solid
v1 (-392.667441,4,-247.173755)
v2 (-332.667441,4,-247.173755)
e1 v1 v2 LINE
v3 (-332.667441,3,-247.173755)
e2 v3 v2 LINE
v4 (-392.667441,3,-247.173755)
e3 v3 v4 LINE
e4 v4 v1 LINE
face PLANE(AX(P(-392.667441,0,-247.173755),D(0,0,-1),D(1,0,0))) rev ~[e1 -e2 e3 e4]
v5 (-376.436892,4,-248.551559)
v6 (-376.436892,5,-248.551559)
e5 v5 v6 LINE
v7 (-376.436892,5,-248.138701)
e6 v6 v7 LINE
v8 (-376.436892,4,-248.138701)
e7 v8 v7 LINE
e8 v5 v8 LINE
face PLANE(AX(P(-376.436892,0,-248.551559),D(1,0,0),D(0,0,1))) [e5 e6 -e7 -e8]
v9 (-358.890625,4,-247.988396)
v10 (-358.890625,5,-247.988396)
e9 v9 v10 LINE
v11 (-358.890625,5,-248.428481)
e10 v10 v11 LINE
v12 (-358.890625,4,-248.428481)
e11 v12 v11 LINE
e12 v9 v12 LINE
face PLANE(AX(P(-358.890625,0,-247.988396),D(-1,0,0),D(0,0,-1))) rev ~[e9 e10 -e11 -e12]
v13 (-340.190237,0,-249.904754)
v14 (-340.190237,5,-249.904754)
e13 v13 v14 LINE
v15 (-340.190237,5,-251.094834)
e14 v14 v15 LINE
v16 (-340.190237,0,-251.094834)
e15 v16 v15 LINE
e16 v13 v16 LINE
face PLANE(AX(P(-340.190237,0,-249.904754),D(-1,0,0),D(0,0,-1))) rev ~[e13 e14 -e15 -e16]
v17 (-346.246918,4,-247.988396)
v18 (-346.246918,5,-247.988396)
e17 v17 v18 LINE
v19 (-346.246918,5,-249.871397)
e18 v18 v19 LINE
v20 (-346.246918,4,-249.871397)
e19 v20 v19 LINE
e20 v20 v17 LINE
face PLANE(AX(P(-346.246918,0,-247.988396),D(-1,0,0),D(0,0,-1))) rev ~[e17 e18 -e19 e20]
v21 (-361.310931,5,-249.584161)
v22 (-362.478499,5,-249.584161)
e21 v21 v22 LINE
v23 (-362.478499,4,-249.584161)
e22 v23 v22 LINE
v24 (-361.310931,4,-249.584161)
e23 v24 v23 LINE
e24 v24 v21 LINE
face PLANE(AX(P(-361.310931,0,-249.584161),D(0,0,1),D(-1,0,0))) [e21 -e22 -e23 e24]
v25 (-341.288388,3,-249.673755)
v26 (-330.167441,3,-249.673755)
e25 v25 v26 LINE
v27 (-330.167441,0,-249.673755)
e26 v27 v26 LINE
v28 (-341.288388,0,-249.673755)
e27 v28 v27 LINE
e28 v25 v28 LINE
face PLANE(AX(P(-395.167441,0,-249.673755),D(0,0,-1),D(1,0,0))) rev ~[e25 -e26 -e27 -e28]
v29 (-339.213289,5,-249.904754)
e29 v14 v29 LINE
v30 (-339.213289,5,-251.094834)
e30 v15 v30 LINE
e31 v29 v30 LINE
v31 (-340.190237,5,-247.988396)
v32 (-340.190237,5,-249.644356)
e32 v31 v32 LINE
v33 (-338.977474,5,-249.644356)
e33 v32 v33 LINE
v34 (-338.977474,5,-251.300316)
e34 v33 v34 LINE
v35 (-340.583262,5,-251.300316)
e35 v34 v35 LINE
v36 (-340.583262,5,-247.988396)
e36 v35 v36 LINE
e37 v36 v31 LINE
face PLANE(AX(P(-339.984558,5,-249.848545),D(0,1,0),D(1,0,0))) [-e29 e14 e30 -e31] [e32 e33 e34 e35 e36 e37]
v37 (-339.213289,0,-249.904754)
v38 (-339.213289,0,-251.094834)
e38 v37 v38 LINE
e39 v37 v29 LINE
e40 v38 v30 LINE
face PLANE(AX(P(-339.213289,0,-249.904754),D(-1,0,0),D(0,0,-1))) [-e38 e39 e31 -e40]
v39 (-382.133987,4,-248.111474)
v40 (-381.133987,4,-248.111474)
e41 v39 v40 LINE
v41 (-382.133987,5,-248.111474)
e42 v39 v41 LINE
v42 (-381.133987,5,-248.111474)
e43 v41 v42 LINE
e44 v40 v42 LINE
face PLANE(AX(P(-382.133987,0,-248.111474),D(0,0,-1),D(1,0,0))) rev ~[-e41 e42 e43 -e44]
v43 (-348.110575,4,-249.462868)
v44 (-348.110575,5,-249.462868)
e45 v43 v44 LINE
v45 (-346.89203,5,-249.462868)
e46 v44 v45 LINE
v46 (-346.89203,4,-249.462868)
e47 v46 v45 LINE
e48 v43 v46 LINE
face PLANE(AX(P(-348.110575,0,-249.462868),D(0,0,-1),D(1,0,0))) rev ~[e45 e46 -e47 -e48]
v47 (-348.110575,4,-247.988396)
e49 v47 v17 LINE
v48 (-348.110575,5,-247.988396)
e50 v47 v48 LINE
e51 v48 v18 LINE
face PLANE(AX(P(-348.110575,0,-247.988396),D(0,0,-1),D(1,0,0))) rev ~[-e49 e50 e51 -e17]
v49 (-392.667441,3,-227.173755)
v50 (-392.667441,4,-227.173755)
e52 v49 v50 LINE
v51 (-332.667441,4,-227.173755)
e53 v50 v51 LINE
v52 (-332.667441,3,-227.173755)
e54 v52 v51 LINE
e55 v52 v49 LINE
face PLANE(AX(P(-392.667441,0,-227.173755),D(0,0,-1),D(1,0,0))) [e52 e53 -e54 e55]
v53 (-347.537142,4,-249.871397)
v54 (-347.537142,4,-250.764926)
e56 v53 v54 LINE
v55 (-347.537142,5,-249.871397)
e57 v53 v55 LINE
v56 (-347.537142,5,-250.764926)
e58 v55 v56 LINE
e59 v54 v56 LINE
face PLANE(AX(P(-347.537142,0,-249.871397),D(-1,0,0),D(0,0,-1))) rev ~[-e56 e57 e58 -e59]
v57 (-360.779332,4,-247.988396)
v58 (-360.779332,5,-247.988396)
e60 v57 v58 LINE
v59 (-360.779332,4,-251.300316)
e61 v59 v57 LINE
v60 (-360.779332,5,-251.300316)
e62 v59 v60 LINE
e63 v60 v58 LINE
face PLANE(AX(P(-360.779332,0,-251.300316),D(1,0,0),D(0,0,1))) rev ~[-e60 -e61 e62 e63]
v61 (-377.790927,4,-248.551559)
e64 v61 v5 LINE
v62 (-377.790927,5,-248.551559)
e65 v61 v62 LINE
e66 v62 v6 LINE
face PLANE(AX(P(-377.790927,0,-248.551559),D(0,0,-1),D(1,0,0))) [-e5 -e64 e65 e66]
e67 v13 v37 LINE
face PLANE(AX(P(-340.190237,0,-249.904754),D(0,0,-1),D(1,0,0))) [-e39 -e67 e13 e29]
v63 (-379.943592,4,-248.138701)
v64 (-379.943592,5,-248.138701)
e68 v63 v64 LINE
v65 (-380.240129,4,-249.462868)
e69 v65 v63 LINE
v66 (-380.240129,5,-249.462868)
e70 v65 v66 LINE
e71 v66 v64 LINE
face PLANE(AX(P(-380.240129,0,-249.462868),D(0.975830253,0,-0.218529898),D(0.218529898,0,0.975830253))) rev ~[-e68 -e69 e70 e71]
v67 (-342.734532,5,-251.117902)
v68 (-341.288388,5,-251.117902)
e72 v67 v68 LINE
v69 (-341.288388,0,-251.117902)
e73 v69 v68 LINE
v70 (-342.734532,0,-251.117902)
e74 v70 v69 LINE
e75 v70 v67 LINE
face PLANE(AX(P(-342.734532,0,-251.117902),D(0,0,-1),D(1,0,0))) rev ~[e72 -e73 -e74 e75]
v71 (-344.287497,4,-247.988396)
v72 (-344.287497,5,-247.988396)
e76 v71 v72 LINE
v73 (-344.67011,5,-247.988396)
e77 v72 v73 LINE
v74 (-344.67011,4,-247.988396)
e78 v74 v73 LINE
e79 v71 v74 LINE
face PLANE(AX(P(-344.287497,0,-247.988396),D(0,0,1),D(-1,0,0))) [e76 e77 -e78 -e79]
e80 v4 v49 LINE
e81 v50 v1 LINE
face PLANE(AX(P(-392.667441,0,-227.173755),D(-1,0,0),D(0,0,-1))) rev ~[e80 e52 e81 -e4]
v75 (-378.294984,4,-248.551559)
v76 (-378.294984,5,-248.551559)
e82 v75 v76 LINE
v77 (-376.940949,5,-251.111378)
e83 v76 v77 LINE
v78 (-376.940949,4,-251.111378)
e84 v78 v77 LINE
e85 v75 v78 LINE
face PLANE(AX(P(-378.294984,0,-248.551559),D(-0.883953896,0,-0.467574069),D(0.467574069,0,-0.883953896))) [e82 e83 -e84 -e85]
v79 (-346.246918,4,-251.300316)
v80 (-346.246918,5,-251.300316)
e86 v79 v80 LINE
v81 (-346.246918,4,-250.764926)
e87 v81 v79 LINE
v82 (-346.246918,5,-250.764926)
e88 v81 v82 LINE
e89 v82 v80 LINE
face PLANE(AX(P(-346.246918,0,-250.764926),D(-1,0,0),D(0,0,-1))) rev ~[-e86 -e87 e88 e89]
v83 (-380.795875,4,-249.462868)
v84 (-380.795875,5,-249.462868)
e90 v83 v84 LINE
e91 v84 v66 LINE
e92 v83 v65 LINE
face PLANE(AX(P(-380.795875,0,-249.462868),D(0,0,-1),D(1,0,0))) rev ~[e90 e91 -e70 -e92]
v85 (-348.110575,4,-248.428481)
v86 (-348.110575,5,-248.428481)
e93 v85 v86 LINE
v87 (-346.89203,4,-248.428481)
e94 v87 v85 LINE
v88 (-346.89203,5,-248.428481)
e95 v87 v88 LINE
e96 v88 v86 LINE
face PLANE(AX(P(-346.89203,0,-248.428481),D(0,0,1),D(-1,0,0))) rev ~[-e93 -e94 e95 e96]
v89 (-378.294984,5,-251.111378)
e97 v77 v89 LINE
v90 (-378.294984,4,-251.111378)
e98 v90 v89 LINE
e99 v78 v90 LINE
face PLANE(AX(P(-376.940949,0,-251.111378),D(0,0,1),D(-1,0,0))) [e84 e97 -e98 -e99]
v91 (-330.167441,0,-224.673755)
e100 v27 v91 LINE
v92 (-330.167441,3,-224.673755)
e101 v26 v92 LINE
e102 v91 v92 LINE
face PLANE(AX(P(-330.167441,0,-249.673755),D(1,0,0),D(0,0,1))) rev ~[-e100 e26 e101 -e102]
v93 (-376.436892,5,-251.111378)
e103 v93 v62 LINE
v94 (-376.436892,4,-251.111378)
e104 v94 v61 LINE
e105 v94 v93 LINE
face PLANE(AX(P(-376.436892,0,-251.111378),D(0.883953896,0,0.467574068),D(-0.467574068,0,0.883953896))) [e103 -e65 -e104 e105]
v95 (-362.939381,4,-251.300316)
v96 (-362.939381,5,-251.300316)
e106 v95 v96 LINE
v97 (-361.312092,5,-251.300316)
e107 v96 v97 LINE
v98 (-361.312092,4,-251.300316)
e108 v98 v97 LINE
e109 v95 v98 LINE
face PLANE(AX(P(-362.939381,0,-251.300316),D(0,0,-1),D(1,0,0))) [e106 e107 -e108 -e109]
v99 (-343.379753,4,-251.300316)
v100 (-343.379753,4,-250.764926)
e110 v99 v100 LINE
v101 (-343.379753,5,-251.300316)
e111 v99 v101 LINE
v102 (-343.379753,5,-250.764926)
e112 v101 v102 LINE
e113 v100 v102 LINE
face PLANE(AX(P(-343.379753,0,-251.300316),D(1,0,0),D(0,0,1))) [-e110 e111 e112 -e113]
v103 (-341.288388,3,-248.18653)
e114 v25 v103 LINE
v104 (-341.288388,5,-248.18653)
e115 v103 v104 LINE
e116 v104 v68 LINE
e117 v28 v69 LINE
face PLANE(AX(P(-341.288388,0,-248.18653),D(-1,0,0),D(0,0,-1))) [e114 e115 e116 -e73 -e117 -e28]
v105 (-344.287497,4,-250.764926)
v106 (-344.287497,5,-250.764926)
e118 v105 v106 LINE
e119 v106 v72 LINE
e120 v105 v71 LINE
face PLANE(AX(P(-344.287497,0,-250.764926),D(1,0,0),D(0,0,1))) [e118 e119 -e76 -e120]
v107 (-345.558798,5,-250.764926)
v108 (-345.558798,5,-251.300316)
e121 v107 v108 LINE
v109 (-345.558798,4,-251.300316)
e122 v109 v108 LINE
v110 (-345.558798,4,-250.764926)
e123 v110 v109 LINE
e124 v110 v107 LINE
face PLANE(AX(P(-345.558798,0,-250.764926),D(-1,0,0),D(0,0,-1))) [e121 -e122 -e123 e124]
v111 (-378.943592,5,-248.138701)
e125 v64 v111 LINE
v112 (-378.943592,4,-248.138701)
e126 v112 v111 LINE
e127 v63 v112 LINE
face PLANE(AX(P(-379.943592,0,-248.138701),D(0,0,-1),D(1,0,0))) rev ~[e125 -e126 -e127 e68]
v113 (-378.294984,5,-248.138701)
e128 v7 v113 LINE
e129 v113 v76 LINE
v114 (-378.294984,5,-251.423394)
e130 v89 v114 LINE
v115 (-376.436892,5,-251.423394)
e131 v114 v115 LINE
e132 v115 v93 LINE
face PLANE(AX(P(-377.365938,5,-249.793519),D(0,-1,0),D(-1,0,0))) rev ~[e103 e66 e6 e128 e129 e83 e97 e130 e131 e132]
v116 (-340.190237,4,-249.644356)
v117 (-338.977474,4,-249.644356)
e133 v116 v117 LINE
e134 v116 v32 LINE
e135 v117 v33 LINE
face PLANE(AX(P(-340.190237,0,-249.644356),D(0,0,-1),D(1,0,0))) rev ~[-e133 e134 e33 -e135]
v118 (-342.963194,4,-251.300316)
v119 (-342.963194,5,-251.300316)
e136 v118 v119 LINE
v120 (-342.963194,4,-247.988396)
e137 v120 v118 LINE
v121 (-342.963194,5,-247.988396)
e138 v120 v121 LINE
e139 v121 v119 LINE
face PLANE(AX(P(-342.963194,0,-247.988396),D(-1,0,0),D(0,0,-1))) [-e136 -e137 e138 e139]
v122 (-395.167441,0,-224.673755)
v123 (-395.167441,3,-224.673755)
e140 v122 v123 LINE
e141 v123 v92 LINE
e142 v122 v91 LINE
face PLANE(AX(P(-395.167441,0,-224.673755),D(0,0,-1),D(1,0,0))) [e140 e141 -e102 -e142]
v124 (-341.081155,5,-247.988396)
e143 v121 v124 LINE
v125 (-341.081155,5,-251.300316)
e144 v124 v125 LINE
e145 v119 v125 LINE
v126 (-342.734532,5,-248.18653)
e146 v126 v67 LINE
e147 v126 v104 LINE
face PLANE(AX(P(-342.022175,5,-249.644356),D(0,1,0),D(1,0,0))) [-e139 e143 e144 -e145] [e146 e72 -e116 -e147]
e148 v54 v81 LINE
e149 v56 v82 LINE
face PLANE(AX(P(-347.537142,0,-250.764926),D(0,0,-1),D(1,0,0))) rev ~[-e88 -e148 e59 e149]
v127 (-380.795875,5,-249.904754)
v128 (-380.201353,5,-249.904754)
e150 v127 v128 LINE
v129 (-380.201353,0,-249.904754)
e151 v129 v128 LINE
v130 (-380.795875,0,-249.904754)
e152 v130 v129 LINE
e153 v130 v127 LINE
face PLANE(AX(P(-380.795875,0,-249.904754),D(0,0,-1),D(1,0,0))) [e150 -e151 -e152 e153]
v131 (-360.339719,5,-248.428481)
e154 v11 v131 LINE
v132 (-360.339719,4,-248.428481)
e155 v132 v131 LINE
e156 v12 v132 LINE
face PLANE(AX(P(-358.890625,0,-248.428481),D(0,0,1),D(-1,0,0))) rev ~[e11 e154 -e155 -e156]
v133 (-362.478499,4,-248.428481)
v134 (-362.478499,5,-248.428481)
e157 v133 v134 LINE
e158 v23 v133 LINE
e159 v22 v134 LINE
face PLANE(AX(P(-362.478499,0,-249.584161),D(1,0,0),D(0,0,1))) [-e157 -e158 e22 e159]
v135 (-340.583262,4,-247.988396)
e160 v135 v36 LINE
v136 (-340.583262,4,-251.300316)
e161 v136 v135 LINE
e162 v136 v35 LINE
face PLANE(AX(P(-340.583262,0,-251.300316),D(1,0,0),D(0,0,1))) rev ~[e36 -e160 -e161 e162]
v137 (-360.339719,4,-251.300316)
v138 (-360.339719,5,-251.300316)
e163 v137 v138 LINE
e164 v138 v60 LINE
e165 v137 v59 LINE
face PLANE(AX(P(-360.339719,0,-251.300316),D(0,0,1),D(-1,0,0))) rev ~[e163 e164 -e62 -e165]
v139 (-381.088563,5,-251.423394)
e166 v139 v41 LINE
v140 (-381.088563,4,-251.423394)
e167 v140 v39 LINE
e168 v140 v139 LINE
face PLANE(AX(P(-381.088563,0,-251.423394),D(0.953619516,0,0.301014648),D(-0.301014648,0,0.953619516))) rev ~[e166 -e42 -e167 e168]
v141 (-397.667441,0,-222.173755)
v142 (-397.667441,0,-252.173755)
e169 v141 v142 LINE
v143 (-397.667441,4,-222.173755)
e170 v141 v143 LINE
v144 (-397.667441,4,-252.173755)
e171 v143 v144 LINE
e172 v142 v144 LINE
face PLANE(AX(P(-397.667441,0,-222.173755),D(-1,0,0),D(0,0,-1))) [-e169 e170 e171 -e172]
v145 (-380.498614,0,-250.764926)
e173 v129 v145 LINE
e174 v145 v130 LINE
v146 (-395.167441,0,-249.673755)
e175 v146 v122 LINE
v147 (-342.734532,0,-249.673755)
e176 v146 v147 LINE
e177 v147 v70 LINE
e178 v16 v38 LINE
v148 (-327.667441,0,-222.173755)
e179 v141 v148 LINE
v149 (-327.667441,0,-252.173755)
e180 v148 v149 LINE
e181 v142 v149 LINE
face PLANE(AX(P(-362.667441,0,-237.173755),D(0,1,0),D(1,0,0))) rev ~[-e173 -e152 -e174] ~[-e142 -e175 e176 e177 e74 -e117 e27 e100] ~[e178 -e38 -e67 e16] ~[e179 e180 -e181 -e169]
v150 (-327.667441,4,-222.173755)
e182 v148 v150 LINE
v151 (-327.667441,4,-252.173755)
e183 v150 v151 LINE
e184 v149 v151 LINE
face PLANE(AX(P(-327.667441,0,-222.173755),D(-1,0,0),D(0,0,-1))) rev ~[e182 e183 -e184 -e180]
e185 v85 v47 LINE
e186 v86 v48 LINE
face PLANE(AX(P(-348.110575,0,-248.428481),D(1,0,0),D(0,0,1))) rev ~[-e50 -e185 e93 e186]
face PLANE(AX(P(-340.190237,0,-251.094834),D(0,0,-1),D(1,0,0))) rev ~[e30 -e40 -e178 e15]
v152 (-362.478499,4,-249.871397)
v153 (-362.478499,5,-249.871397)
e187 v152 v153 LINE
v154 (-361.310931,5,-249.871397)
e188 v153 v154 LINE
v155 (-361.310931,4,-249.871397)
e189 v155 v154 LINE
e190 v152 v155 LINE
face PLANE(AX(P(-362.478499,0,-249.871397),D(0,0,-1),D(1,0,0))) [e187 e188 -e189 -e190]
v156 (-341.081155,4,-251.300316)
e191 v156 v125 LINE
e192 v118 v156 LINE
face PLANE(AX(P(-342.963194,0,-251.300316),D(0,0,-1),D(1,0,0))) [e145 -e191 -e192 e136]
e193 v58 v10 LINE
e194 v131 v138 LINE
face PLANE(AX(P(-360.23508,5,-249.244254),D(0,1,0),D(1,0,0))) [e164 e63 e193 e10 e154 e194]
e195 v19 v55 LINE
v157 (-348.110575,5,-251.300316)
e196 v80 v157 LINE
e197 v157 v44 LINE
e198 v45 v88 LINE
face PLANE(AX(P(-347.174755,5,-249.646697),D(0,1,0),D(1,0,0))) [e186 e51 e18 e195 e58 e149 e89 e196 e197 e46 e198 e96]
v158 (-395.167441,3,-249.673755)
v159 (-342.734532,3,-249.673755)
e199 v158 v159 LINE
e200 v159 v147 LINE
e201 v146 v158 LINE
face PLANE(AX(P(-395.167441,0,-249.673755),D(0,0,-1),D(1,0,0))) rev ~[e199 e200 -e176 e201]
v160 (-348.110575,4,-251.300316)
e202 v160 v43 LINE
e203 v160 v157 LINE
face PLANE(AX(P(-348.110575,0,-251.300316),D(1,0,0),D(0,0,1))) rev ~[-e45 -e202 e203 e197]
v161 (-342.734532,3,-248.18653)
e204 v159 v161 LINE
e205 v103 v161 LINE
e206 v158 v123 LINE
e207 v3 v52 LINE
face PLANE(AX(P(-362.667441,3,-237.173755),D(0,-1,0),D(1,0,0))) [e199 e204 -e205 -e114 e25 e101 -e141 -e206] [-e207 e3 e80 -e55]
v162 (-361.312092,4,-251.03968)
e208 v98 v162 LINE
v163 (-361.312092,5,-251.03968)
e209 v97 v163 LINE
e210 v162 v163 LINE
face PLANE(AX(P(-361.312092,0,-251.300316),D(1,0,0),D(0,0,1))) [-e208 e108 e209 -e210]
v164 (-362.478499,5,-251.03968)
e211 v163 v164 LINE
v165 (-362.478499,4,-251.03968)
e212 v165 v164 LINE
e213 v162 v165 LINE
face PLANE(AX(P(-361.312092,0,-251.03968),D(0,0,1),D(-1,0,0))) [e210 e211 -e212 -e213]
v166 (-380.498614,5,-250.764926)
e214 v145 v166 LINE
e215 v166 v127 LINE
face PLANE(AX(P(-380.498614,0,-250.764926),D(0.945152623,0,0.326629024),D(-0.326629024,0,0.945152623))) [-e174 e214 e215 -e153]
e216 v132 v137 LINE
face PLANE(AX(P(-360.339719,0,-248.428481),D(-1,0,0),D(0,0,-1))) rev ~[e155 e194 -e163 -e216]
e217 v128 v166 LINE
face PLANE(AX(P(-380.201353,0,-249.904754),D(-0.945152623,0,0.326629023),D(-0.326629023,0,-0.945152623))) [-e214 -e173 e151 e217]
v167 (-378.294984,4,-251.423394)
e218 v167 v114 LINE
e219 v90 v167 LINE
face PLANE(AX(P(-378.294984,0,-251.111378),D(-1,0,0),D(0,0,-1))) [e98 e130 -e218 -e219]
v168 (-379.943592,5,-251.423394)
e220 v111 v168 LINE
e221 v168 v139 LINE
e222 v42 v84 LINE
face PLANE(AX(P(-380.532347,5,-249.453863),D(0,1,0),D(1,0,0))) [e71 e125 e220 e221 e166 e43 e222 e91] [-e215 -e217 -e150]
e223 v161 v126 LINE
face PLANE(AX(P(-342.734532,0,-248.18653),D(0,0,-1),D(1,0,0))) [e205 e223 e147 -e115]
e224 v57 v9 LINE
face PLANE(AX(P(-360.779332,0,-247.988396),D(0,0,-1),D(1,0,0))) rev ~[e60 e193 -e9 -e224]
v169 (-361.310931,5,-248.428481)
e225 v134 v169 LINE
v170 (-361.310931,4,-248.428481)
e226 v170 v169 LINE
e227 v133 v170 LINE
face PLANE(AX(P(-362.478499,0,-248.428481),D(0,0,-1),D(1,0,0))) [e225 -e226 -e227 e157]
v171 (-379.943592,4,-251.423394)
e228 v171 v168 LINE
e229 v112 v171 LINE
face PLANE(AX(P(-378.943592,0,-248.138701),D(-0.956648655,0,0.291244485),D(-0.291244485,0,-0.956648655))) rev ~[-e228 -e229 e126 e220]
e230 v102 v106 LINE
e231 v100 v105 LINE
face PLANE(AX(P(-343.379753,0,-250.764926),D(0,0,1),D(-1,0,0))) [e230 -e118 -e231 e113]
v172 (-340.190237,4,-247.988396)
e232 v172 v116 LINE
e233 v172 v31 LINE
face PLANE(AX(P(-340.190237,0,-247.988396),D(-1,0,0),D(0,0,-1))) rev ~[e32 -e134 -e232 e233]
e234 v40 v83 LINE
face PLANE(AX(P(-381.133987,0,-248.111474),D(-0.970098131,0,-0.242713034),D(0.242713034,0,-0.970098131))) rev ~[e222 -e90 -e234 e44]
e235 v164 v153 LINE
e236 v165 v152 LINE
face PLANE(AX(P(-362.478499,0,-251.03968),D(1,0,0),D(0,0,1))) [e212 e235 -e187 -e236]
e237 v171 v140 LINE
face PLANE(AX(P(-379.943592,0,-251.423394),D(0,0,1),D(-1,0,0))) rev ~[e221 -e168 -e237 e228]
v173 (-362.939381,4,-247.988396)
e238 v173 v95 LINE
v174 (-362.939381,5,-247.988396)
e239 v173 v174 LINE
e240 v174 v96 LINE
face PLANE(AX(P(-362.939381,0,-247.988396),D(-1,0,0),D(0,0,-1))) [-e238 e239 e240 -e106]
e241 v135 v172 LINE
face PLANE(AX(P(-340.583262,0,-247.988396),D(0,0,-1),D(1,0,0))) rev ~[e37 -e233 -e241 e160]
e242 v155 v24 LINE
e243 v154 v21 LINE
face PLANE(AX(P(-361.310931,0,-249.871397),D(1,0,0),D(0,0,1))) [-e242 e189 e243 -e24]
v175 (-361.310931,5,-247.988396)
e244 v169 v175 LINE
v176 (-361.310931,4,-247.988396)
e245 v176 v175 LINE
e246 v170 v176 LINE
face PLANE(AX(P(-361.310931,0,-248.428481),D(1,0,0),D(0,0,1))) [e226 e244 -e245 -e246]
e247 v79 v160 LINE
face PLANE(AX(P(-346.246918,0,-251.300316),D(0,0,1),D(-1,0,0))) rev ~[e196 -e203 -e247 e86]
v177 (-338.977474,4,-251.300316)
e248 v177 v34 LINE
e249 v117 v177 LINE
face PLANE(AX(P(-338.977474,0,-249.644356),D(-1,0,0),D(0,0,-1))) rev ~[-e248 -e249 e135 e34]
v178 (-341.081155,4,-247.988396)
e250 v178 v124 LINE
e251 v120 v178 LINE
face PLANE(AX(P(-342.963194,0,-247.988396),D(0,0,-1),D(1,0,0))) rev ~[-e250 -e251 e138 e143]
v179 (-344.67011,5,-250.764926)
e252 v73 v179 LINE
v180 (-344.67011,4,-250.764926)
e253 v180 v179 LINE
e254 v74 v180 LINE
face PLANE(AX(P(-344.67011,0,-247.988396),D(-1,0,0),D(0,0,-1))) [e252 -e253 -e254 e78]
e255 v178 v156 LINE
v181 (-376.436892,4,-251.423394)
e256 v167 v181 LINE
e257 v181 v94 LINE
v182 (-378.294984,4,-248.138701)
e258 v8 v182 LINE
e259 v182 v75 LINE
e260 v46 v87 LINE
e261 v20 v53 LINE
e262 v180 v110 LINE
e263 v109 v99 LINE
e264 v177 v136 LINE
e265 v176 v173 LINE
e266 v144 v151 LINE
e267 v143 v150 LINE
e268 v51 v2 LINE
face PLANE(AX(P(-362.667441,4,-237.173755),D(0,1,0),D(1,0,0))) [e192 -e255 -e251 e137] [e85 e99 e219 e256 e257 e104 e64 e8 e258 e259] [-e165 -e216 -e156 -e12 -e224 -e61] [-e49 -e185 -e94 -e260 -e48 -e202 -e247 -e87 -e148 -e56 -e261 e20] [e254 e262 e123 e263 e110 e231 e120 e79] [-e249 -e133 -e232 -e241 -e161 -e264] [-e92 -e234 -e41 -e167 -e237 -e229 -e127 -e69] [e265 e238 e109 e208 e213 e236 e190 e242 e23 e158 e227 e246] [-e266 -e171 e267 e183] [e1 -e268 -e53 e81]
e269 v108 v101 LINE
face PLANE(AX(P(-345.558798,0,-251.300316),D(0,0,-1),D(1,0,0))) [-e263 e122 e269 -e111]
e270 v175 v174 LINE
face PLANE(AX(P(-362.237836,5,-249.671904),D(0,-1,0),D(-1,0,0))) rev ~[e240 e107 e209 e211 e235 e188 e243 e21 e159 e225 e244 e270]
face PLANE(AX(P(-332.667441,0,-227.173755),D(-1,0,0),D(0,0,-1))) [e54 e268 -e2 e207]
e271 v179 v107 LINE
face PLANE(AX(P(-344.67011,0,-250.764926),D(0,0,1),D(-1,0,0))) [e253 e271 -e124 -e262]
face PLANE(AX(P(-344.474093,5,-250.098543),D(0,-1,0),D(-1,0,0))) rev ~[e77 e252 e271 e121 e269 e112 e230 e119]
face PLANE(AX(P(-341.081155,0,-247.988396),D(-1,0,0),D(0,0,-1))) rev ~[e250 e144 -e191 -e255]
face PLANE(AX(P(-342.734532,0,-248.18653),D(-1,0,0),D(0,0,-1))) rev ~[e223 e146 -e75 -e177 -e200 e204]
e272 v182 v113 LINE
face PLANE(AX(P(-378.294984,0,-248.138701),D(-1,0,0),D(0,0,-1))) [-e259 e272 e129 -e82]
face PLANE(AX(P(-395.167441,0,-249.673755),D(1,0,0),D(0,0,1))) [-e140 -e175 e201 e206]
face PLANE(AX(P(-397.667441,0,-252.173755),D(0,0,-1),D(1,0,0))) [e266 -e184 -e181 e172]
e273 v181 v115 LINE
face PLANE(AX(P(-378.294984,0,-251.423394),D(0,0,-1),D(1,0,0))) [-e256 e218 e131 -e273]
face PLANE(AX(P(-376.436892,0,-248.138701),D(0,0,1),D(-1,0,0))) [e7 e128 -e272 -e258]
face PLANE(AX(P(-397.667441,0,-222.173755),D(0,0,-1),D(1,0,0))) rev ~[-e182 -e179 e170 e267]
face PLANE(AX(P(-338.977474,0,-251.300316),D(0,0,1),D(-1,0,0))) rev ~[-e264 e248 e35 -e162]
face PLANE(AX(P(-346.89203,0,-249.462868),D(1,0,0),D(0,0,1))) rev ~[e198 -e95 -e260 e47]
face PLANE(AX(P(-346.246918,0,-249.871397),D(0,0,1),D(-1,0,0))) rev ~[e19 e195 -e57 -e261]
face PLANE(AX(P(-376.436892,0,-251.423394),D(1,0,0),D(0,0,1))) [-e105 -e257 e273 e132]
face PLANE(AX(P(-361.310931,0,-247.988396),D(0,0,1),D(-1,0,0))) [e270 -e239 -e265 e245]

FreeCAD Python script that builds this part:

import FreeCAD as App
import Part
import Sketcher
from FreeCAD import Vector


def add_polygon(sketch, points):
    """Adds a closed chain of lines whose ends are joined by coincident constraints."""
    first, n = sketch.GeometryCount, len(points)
    for a, b in zip(points, points[1:] + points[:1]):
        sketch.addGeometry(Part.LineSegment(App.Vector(*a, 0), App.Vector(*b, 0)), False)
    for i in range(n):
        sketch.addConstraint(Sketcher.Constraint("Coincident", first + i, 2, first + (i + 1) % n, 1))

doc = App.newDocument("Part")
body = doc.addObject("PartDesign::Body", "Body")

# Sketch on XZ plane
sketch1 = doc.addObject("Sketcher::SketchObject", "Sketch")
body.addObject(sketch1)
sketch1.AttachmentSupport = (doc.XZ_Plane, [""])
sketch1.MapMode = "FlatFace"
add_polygon(sketch1, [(-379.9, -251.4), (-381.1, -251.4), (-382.1, -248.1), (-381.1, -248.1), (-380.8, -249.5), (-380.2, -249.5), (-379.9, -248.1), (-378.9, -248.1)])  # lines 0-7
add_polygon(sketch1, [(-380.8, -249.9), (-380.5, -250.8), (-380.2, -249.9)])  # lines 8-10
sketch1.addConstraint(Sketcher.Constraint("Horizontal", 0))
sketch1.addConstraint(Sketcher.Constraint("Horizontal", 2))
sketch1.addConstraint(Sketcher.Constraint("Horizontal", 4))
sketch1.addConstraint(Sketcher.Constraint("Horizontal", 6))
sketch1.addConstraint(Sketcher.Constraint("Horizontal", 10))
sketch1.addConstraint(Sketcher.Constraint("Vertical", 5, 2, 7, 2))
sketch1.addConstraint(Sketcher.Constraint("Vertical", 3, 2, 10, 2))
sketch1.addConstraint(Sketcher.Constraint("Equal", 2, 6))
sketch1.addConstraint(Sketcher.Constraint("Equal", 8, 9))
sketch1.addConstraint(Sketcher.Constraint("DistanceX", 2, 1, 2, 2, 1.0))
sketch1.addConstraint(Sketcher.Constraint("Distance", 1, 3.473))
sketch1.addConstraint(Sketcher.Constraint("DistanceX", 0, 2, 0, 1, 1.14497))
sketch1.addConstraint(Sketcher.Constraint("DistanceY", 5, 2, -1, 1, 248.138701))
sketch1.addConstraint(Sketcher.Constraint("Distance", 3, 1.393049))
sketch1.addConstraint(Sketcher.Constraint("Distance", 7, 3.433541))
sketch1.addConstraint(Sketcher.Constraint("DistanceX", 4, 1, 4, 2, 0.555746))
sketch1.addConstraint(Sketcher.Constraint("DistanceX", 10, 2, 10, 1, 0.594522))
sketch1.addConstraint(Sketcher.Constraint("DistanceX", 4, 2, -1, 1, 380.240129))
sketch1.addConstraint(Sketcher.Constraint("DistanceY", 0, 2, 1, 2, 3.31192))
sketch1.addConstraint(Sketcher.Constraint("DistanceX", 2, 2, 3, 2, 0.338111))
sketch1.addConstraint(Sketcher.Constraint("DistanceY", 7, 2, 8, 2, 0.658468))
sketch1.addConstraint(Sketcher.Constraint("DistanceY", 8, 2, 9, 2, 0.860172))
pad1 = doc.addObject("PartDesign::Pad", "Pad")
body.addObject(pad1)
pad1.Profile = sketch1
pad1.Length = 5
pad1.Reversed = True
body2 = doc.addObject("PartDesign::Body", "Body001")

# Sketch on XZ plane
sketch2 = doc.addObject("Sketcher::SketchObject", "Sketch001")
body2.addObject(sketch2)
sketch2.AttachmentSupport = (doc.getObject("XZ_Plane001"), [""])
sketch2.MapMode = "FlatFace"
add_polygon(sketch2, [(-378.29, -251.42), (-378.29, -251.11), (-376.94, -251.11), (-378.29, -248.55), (-378.29, -248.14), (-376.44, -248.14), (-376.44, -248.55), (-377.79, -248.55), (-376.44, -251.11), (-376.44, -251.42)])  # lines 0-9
sketch2.addConstraint(Sketcher.Constraint("Vertical", 0))
sketch2.addConstraint(Sketcher.Constraint("Horizontal", 1))
sketch2.addConstraint(Sketcher.Constraint("Vertical", 3))
sketch2.addConstraint(Sketcher.Constraint("Horizontal", 4))
sketch2.addConstraint(Sketcher.Constraint("Vertical", 5))
sketch2.addConstraint(Sketcher.Constraint("Horizontal", 6))
sketch2.addConstraint(Sketcher.Constraint("Vertical", 8))
sketch2.addConstraint(Sketcher.Constraint("Horizontal", 9))
sketch2.addConstraint(Sketcher.Constraint("Parallel", 2, 7))
sketch2.addConstraint(Sketcher.Constraint("Horizontal", 2, 2, 5, 2))
sketch2.addConstraint(Sketcher.Constraint("Horizontal", 1, 2, 7, 2))
sketch2.addConstraint(Sketcher.Constraint("Vertical", 0, 2, 2, 2))
sketch2.addConstraint(Sketcher.Constraint("Vertical", 5, 2, 7, 2))
sketch2.addConstraint(Sketcher.Constraint("DistanceY", 3, 2, -1, 1, 248.138701))
sketch2.addConstraint(Sketcher.Constraint("DistanceX", 1, 1, 1, 2, 1.354035))
sketch2.addConstraint(Sketcher.Constraint("DistanceX", 4, 1, 4, 2, 1.858092))
sketch2.addConstraint(Sketcher.Constraint("DistanceY", 0, 1, 0, 2, 0.312017))
sketch2.addConstraint(Sketcher.Constraint("DistanceY", 3, 1, 3, 2, 0.412857))
sketch2.addConstraint(Sketcher.Constraint("DistanceX", 1, 2, -1, 1, 376.940949))
sketch2.addConstraint(Sketcher.Constraint("DistanceY", 0, 2, 2, 2, 2.559819))
pad2 = doc.addObject("PartDesign::Pad", "Pad001")
body2.addObject(pad2)
pad2.Profile = sketch2
pad2.Length = 5
pad2.Reversed = True
body3 = doc.addObject("PartDesign::Body", "Body002")

# Sketch on XZ plane
sketch3 = doc.addObject("Sketcher::SketchObject", "Sketch002")
body3.addObject(sketch3)
sketch3.AttachmentSupport = (doc.getObject("XZ_Plane002"), [""])
sketch3.MapMode = "FlatFace"
add_polygon(sketch3, [(-361.31, -251.3), (-362.94, -251.3), (-362.94, -247.99), (-361.31, -247.99), (-361.31, -248.43), (-362.48, -248.43), (-362.48, -249.58), (-361.31, -249.58), (-361.31, -249.87), (-362.48, -249.87), (-362.48, -251.04), (-361.31, -251.04)])  # lines 0-11
sketch3.addConstraint(Sketcher.Constraint("Horizontal", 0))
sketch3.addConstraint(Sketcher.Constraint("Vertical", 1))
sketch3.addConstraint(Sketcher.Constraint("Horizontal", 2))
sketch3.addConstraint(Sketcher.Constraint("Vertical", 3))
sketch3.addConstraint(Sketcher.Constraint("Horizontal", 4))
sketch3.addConstraint(Sketcher.Constraint("Vertical", 5))
sketch3.addConstraint(Sketcher.Constraint("Horizontal", 6))
sketch3.addConstraint(Sketcher.Constraint("Vertical", 7))
sketch3.addConstraint(Sketcher.Constraint("Horizontal", 8))
sketch3.addConstraint(Sketcher.Constraint("Vertical", 9))
sketch3.addConstraint(Sketcher.Constraint("Horizontal", 10))
sketch3.addConstraint(Sketcher.Constraint("Vertical", 11))
sketch3.addConstraint(Sketcher.Constraint("Vertical", 3, 2, 6, 2))
sketch3.addConstraint(Sketcher.Constraint("Vertical", 5, 2, 8, 2))
sketch3.addConstraint(Sketcher.Constraint("DistanceY", 7, 2, 2, 2, 1.883001))
sketch3.addConstraint(Sketcher.Constraint("DistanceX", 0, 2, 0, 1, 1.627289))
sketch3.addConstraint(Sketcher.Constraint("DistanceX", 2, 1, 2, 2, 1.62845))
sketch3.addConstraint(Sketcher.Constraint("DistanceY", 1, 1, 1, 2, 3.31192))
sketch3.addConstraint(Sketcher.Constraint("DistanceY", 5, 2, 5, 1, 1.15568))
sketch3.addConstraint(Sketcher.Constraint("DistanceX", 4, 2, -1, 1, 362.478499))
sketch3.addConstraint(Sketcher.Constraint("DistanceX", 4, 2, 4, 1, 1.167568))
sketch3.addConstraint(Sketcher.Constraint("DistanceY", 3, 2, 3, 1, 0.440085))
sketch3.addConstraint(Sketcher.Constraint("DistanceY", 9, 2, 9, 1, 1.168283))
sketch3.addConstraint(Sketcher.Constraint("DistanceY", 3, 2, -1, 1, 248.428481))
pad3 = doc.addObject("PartDesign::Pad", "Pad002")
body3.addObject(pad3)
pad3.Profile = sketch3
pad3.Length = 5
pad3.Reversed = True
body4 = doc.addObject("PartDesign::Body", "Body003")

# Sketch on XZ plane
sketch4 = doc.addObject("Sketcher::SketchObject", "Sketch003")
body4.addObject(sketch4)
sketch4.AttachmentSupport = (doc.getObject("XZ_Plane003"), [""])
sketch4.MapMode = "FlatFace"
add_polygon(sketch4, [(-360.34, -248.43), (-360.34, -251.3), (-360.78, -251.3), (-360.78, -247.99), (-358.89, -247.99), (-358.89, -248.43)])  # lines 0-5
sketch4.addConstraint(Sketcher.Constraint("Vertical", 0))
sketch4.addConstraint(Sketcher.Constraint("Horizontal", 1))
sketch4.addConstraint(Sketcher.Constraint("Vertical", 2))
sketch4.addConstraint(Sketcher.Constraint("Horizontal", 3))
sketch4.addConstraint(Sketcher.Constraint("Vertical", 4))
sketch4.addConstraint(Sketcher.Constraint("Horizontal", 5))
sketch4.addConstraint(Sketcher.Constraint("DistanceY", 2, 1, 2, 2, 3.31192))
sketch4.addConstraint(Sketcher.Constraint("DistanceX", 1, 2, 1, 1, 0.439613))
sketch4.addConstraint(Sketcher.Constraint("DistanceX", 3, 1, 3, 2, 1.888706))
sketch4.addConstraint(Sketcher.Constraint("DistanceY", 0, 2, 0, 1, 2.871835))
sketch4.addConstraint(Sketcher.Constraint("DistanceX", 0, 2, -1, 1, 360.339719))
sketch4.addConstraint(Sketcher.Constraint("DistanceY", 4, 2, -1, 1, 248.428481))
pad4 = doc.addObject("PartDesign::Pad", "Pad003")
body4.addObject(pad4)
pad4.Profile = sketch4
pad4.Length = 5
pad4.Reversed = True
body5 = doc.addObject("PartDesign::Body", "Body004")

# Sketch on XZ plane
sketch5 = doc.addObject("Sketcher::SketchObject", "Sketch004")
body5.addObject(sketch5)
sketch5.AttachmentSupport = (doc.getObject("XZ_Plane004"), [""])
sketch5.MapMode = "FlatFace"
add_polygon(sketch5, [(-348.11, -247.99), (-346.25, -247.99), (-346.25, -249.87), (-347.54, -249.87), (-347.54, -250.76), (-346.25, -250.76), (-346.25, -251.3), (-348.11, -251.3), (-348.11, -249.46), (-346.89, -249.46), (-346.89, -248.43), (-348.11, -248.43)])  # lines 0-11
sketch5.addConstraint(Sketcher.Constraint("Horizontal", 0))
sketch5.addConstraint(Sketcher.Constraint("Vertical", 1))
sketch5.addConstraint(Sketcher.Constraint("Horizontal", 2))
sketch5.addConstraint(Sketcher.Constraint("Vertical", 3))
sketch5.addConstraint(Sketcher.Constraint("Horizontal", 4))
sketch5.addConstraint(Sketcher.Constraint("Vertical", 5))
sketch5.addConstraint(Sketcher.Constraint("Horizontal", 6))
sketch5.addConstraint(Sketcher.Constraint("Vertical", 7))
sketch5.addConstraint(Sketcher.Constraint("Horizontal", 8))
sketch5.addConstraint(Sketcher.Constraint("Vertical", 9))
sketch5.addConstraint(Sketcher.Constraint("Horizontal", 10))
sketch5.addConstraint(Sketcher.Constraint("Vertical", 11))
sketch5.addConstraint(Sketcher.Constraint("Vertical", 1, 2, 4, 2))
sketch5.addConstraint(Sketcher.Constraint("Vertical", 7, 2, 10, 2))
sketch5.addConstraint(Sketcher.Constraint("DistanceY", 1, 2, 1, 1, 1.883001))
sketch5.addConstraint(Sketcher.Constraint("DistanceY", 3, 2, 3, 1, 0.893529))
sketch5.addConstraint(Sketcher.Constraint("DistanceY", 5, 2, 5, 1, 0.53539))
sketch5.addConstraint(Sketcher.Constraint("DistanceY", 7, 1, 7, 2, 1.837448))
sketch5.addConstraint(Sketcher.Constraint("DistanceX", 0, 1, 0, 2, 1.863657))
sketch5.addConstraint(Sketcher.Constraint("DistanceX", 2, 2, 2, 1, 1.290224))
sketch5.addConstraint(Sketcher.Constraint("DistanceX", 8, 1, 8, 2, 1.218545))
sketch5.addConstraint(Sketcher.Constraint("DistanceY", 9, 1, 9, 2, 1.034387))
sketch5.addConstraint(Sketcher.Constraint("DistanceX", 8, 2, -1, 1, 346.89203))
sketch5.addConstraint(Sketcher.Constraint("DistanceY", 9, 2, -1, 1, 248.428481))
pad5 = doc.addObject("PartDesign::Pad", "Pad004")
body5.addObject(pad5)
pad5.Profile = sketch5
pad5.Length = 5
pad5.Reversed = True
body6 = doc.addObject("PartDesign::Body", "Body005")

# Sketch on XZ plane
sketch6 = doc.addObject("Sketcher::SketchObject", "Sketch005")
body6.addObject(sketch6)
sketch6.AttachmentSupport = (doc.getObject("XZ_Plane005"), [""])
sketch6.MapMode = "FlatFace"
add_polygon(sketch6, [(-343, -251.3), (-343, -248), (-341.1, -248), (-341.1, -251.3)])  # lines 0-3
add_polygon(sketch6, [(-341.3, -248.2), (-342.7, -248.2), (-342.7, -251.1), (-341.3, -251.1)])  # lines 4-7
sketch6.addConstraint(Sketcher.Constraint("Vertical", 0))
sketch6.addConstraint(Sketcher.Constraint("Horizontal", 1))
sketch6.addConstraint(Sketcher.Constraint("Vertical", 2))
sketch6.addConstraint(Sketcher.Constraint("Horizontal", 3))
sketch6.addConstraint(Sketcher.Constraint("Horizontal", 4))
sketch6.addConstraint(Sketcher.Constraint("Vertical", 5))
sketch6.addConstraint(Sketcher.Constraint("Horizontal", 6))
sketch6.addConstraint(Sketcher.Constraint("Vertical", 7))
sketch6.addConstraint(Sketcher.Constraint("DistanceX", 1, 1, 1, 2, 1.882038))
sketch6.addConstraint(Sketcher.Constraint("DistanceY", 0, 1, 0, 2, 3.31192))
sketch6.addConstraint(Sketcher.Constraint("DistanceY", 5, 2, -1, 1, 251.117902))
sketch6.addConstraint(Sketcher.Constraint("DistanceX", 4, 2, 4, 1, 1.446144))
sketch6.addConstraint(Sketcher.Constraint("DistanceY", 5, 2, 5, 1, 2.931372))
sketch6.addConstraint(Sketcher.Constraint("DistanceX", 4, 2, -1, 1, 342.734532))
sketch6.addConstraint(Sketcher.Constraint("DistanceX", 0, 2, -1, 1, 342.963194))
sketch6.addConstraint(Sketcher.Constraint("DistanceY", 0, 2, -1, 1, 247.988396))
pad6 = doc.addObject("PartDesign::Pad", "Pad005")
body6.addObject(pad6)
pad6.Profile = sketch6
pad6.Length = 5
pad6.Reversed = True
body7 = doc.addObject("PartDesign::Body", "Body006")

# Sketch on XZ plane
sketch7 = doc.addObject("Sketcher::SketchObject", "Sketch006")
body7.addObject(sketch7)
sketch7.AttachmentSupport = (doc.getObject("XZ_Plane006"), [""])
sketch7.MapMode = "FlatFace"
add_polygon(sketch7, [(-338.98, -249.64), (-338.98, -251.3), (-340.58, -251.3), (-340.58, -247.99), (-340.19, -247.99), (-340.19, -249.64)])  # lines 0-5
add_polygon(sketch7, [(-339.21, -249.9), (-340.19, -249.9), (-340.19, -251.09), (-339.21, -251.09)])  # lines 6-9
sketch7.addConstraint(Sketcher.Constraint("Vertical", 0))
sketch7.addConstraint(Sketcher.Constraint("Horizontal", 1))
sketch7.addConstraint(Sketcher.Constraint("Vertical", 2))
sketch7.addConstraint(Sketcher.Constraint("Horizontal", 3))
sketch7.addConstraint(Sketcher.Constraint("Vertical", 4))
sketch7.addConstraint(Sketcher.Constraint("Horizontal", 5))
sketch7.addConstraint(Sketcher.Constraint("Horizontal", 6))
sketch7.addConstraint(Sketcher.Constraint("Vertical", 7))
sketch7.addConstraint(Sketcher.Constraint("Horizontal", 8))
sketch7.addConstraint(Sketcher.Constraint("Vertical", 9))
sketch7.addConstraint(Sketcher.Constraint("Vertical", 4, 2, 6, 2))
sketch7.addConstraint(Sketcher.Constraint("Equal", 0, 4))
sketch7.addConstraint(Sketcher.Constraint("DistanceY", 0, 2, 0, 1, 1.65596))
sketch7.addConstraint(Sketcher.Constraint("DistanceY", 7, 2, 7, 1, 1.19008))
sketch7.addConstraint(Sketcher.Constraint("DistanceX", 1, 2, 1, 1, 1.605788))
sketch7.addConstraint(Sketcher.Constraint("DistanceX", 3, 1, 3, 2, 0.393025))
sketch7.addConstraint(Sketcher.Constraint("DistanceX", 6, 2, 6, 1, 0.976948))
sketch7.addConstraint(Sketcher.Constraint("DistanceX", 8, 2, -1, 1, 339.213289))
sketch7.addConstraint(Sketcher.Constraint("DistanceY", 6, 2, 3, 2, 1.916358))
sketch7.addConstraint(Sketcher.Constraint("DistanceY", 0, 2, -1, 1, 251.300316))
pad7 = doc.addObject("PartDesign::Pad", "Pad006")
body7.addObject(pad7)
pad7.Profile = sketch7
pad7.Length = 5
pad7.Reversed = True
body8 = doc.addObject("PartDesign::Body", "Body007")

# Sketch on XZ plane
sketch8 = doc.addObject("Sketcher::SketchObject", "Sketch007")
body8.addObject(sketch8)
sketch8.AttachmentSupport = (doc.getObject("XZ_Plane007"), [""])
sketch8.MapMode = "FlatFace"
add_polygon(sketch8, [(-344.29, -247.99), (-344.29, -250.76), (-343.38, -250.76), (-343.38, -251.3), (-345.56, -251.3), (-345.56, -250.76), (-344.67, -250.76), (-344.67, -247.99)])  # lines 0-7
sketch8.addConstraint(Sketcher.Constraint("Vertical", 0))
sketch8.addConstraint(Sketcher.Constraint("Horizontal", 1))
sketch8.addConstraint(Sketcher.Constraint("Vertical", 2))
sketch8.addConstraint(Sketcher.Constraint("Horizontal", 3))
sketch8.addConstraint(Sketcher.Constraint("Vertical", 4))
sketch8.addConstraint(Sketcher.Constraint("Horizontal", 5))
sketch8.addConstraint(Sketcher.Constraint("Vertical", 6))
sketch8.addConstraint(Sketcher.Constraint("Horizontal", 7))
sketch8.addConstraint(Sketcher.Constraint("Horizontal", 1, 2, 4, 2))
sketch8.addConstraint(Sketcher.Constraint("DistanceX", 5, 1, 5, 2, 0.888688))
sketch8.addConstraint(Sketcher.Constraint("DistanceY", 0, 2, 0, 1, 2.77653))
sketch8.addConstraint(Sketcher.Constraint("DistanceY", 2, 2, 2, 1, 0.53539))
sketch8.addConstraint(Sketcher.Constraint("DistanceX", 3, 2, -1, 1, 345.558798))
sketch8.addConstraint(Sketcher.Constraint("DistanceX", 3, 2, 0, 2, 1.271301))
sketch8.addConstraint(Sketcher.Constraint("DistanceX", 1, 1, 1, 2, 0.907744))
sketch8.addConstraint(Sketcher.Constraint("DistanceY", 0, 2, -1, 1, 250.764926))
pad8 = doc.addObject("PartDesign::Pad", "Pad007")
body8.addObject(pad8)
pad8.Profile = sketch8
pad8.Length = 5
pad8.Reversed = True
body.AllowCompound = True
doc.recompute()

boolean = doc.addObject("PartDesign::Boolean", "Boolean")
body.addObject(boolean)
boolean.Type = "Fuse"
boolean.addObjects([body2])
doc.recompute()

boolean2 = doc.addObject("PartDesign::Boolean", "Boolean001")
body.addObject(boolean2)
boolean2.Type = "Fuse"
boolean2.addObjects([body3])
doc.recompute()

boolean3 = doc.addObject("PartDesign::Boolean", "Boolean002")
body.addObject(boolean3)
boolean3.Type = "Fuse"
boolean3.addObjects([body4])
doc.recompute()

boolean4 = doc.addObject("PartDesign::Boolean", "Boolean003")
body.addObject(boolean4)
boolean4.Type = "Fuse"
boolean4.addObjects([body5])
doc.recompute()

boolean5 = doc.addObject("PartDesign::Boolean", "Boolean004")
body.addObject(boolean5)
boolean5.Type = "Fuse"
boolean5.addObjects([body6])
doc.recompute()

boolean6 = doc.addObject("PartDesign::Boolean", "Boolean005")
body.addObject(boolean6)
boolean6.Type = "Fuse"
boolean6.addObjects([body7])
doc.recompute()

boolean7 = doc.addObject("PartDesign::Boolean", "Boolean006")
body.addObject(boolean7)
boolean7.Type = "Fuse"
boolean7.addObjects([body8])

# Sketch on XZ plane
sketch9 = doc.addObject("Sketcher::SketchObject", "Sketch008")
body.addObject(sketch9)
sketch9.AttachmentSupport = (doc.XZ_Plane, [""])
sketch9.MapMode = "FlatFace"
add_polygon(sketch9, [(-397.67, -252.17), (-397.67, -222.17), (-327.67, -222.17), (-327.67, -252.17)])  # lines 0-3
add_polygon(sketch9, [(-332.67, -227.17), (-392.67, -227.17), (-392.67, -247.17), (-332.67, -247.17)])  # lines 4-7
add_polygon(sketch9, [(-382.13, -248.11), (-381.09, -251.42), (-379.94, -251.42), (-378.94, -248.14), (-379.94, -248.14), (-380.24, -249.46), (-380.8, -249.46), (-381.13, -248.11)])  # lines 8-15
add_polygon(sketch9, [(-360.78, -251.3), (-360.34, -251.3), (-360.34, -248.43), (-358.89, -248.43), (-358.89, -247.99), (-360.78, -247.99)])  # lines 16-21
add_polygon(sketch9, [(-346.25, -249.87), (-346.25, -247.99), (-348.11, -247.99), (-348.11, -248.43), (-346.89, -248.43), (-346.89, -249.46), (-348.11, -249.46), (-348.11, -251.3), (-346.25, -251.3), (-346.25, -250.76), (-347.54, -250.76), (-347.54, -249.87)])  # lines 22-33
add_polygon(sketch9, [(-341.08, -247.99), (-342.96, -247.99), (-342.96, -251.3), (-341.08, -251.3)])  # lines 34-37
add_polygon(sketch9, [(-340.58, -251.3), (-338.98, -251.3), (-338.98, -249.64), (-340.19, -249.64), (-340.19, -247.99), (-340.58, -247.99)])  # lines 38-43
sketch9.addConstraint(Sketcher.Constraint("Vertical", 0))
sketch9.addConstraint(Sketcher.Constraint("Horizontal", 1))
sketch9.addConstraint(Sketcher.Constraint("Vertical", 2))
sketch9.addConstraint(Sketcher.Constraint("Horizontal", 3))
sketch9.addConstraint(Sketcher.Constraint("Horizontal", 4))
sketch9.addConstraint(Sketcher.Constraint("Vertical", 5))
sketch9.addConstraint(Sketcher.Constraint("Horizontal", 6))
sketch9.addConstraint(Sketcher.Constraint("Vertical", 7))
sketch9.addConstraint(Sketcher.Constraint("Horizontal", 9))
sketch9.addConstraint(Sketcher.Constraint("Horizontal", 11))
sketch9.addConstraint(Sketcher.Constraint("Horizontal", 13))
sketch9.addConstraint(Sketcher.Constraint("Horizontal", 15))
sketch9.addConstraint(Sketcher.Constraint("Horizontal", 16))
sketch9.addConstraint(Sketcher.Constraint("Vertical", 17))
sketch9.addConstraint(Sketcher.Constraint("Horizontal", 18))
sketch9.addConstraint(Sketcher.Constraint("Vertical", 19))
sketch9.addConstraint(Sketcher.Constraint("Horizontal", 20))
sketch9.addConstraint(Sketcher.Constraint("Vertical", 21))
sketch9.addConstraint(Sketcher.Constraint("Vertical", 22))
sketch9.addConstraint(Sketcher.Constraint("Horizontal", 23))
sketch9.addConstraint(Sketcher.Constraint("Vertical", 24))
sketch9.addConstraint(Sketcher.Constraint("Horizontal", 25))
sketch9.addConstraint(Sketcher.Constraint("Vertical", 26))
sketch9.addConstraint(Sketcher.Constraint("Horizontal", 27))
sketch9.addConstraint(Sketcher.Constraint("Vertical", 28))
sketch9.addConstraint(Sketcher.Constraint("Horizontal", 29))
sketch9.addConstraint(Sketcher.Constraint("Vertical", 30))
sketch9.addConstraint(Sketcher.Constraint("Horizontal", 31))
sketch9.addConstraint(Sketcher.Constraint("Vertical", 32))
sketch9.addConstraint(Sketcher.Constraint("Horizontal", 33))
sketch9.addConstraint(Sketcher.Constraint("Horizontal", 34))
sketch9.addConstraint(Sketcher.Constraint("Vertical", 35))
sketch9.addConstraint(Sketcher.Constraint("Horizontal", 36))
sketch9.addConstraint(Sketcher.Constraint("Vertical", 37))
sketch9.addConstraint(Sketcher.Constraint("Horizontal", 38))
sketch9.addConstraint(Sketcher.Constraint("Vertical", 39))
sketch9.addConstraint(Sketcher.Constraint("Horizontal", 40))
sketch9.addConstraint(Sketcher.Constraint("Vertical", 41))
sketch9.addConstraint(Sketcher.Constraint("Horizontal", 42))
sketch9.addConstraint(Sketcher.Constraint("Vertical", 43))
sketch9.addConstraint(Sketcher.Constraint("Horizontal", 20, 2, 22, 2))
sketch9.addConstraint(Sketcher.Constraint("Horizontal", 18, 2, 24, 2))
sketch9.addConstraint(Sketcher.Constraint("Horizontal", 13, 2, 26, 2))
sketch9.addConstraint(Sketcher.Constraint("Horizontal", 21, 2, 28, 2))
sketch9.addConstraint(Sketcher.Constraint("Horizontal", 23, 2, 34, 2))
sketch9.addConstraint(Sketcher.Constraint("Horizontal", 29, 2, 35, 2))
sketch9.addConstraint(Sketcher.Constraint("Horizontal", 36, 2, 38, 2))
sketch9.addConstraint(Sketcher.Constraint("Horizontal", 37, 2, 41, 2))
sketch9.addConstraint(Sketcher.Constraint("Vertical", 9, 2, 11, 2))
sketch9.addConstraint(Sketcher.Constraint("Vertical", 24, 2, 27, 2))
sketch9.addConstraint(Sketcher.Constraint("Vertical", 22, 2, 29, 2))
sketch9.addConstraint(Sketcher.Constraint("Equal", 11, 15))
sketch9.addConstraint(Sketcher.Constraint("Equal", 39, 41))
sketch9.addConstraint(Sketcher.Constraint("DistanceX", 1, 1, 1, 2, 70.0))
sketch9.addConstraint(Sketcher.Constraint("DistanceX", 4, 2, 4, 1, 60.0))
sketch9.addConstraint(Sketcher.Constraint("DistanceX", 11, 2, 11, 1, 1.0))
sketch9.addConstraint(Sketcher.Constraint("DistanceY", 0, 1, 0, 2, 30.0))
sketch9.addConstraint(Sketcher.Constraint("DistanceY", 5, 2, 5, 1, 20.0))
sketch9.addConstraint(Sketcher.Constraint("DistanceX", 0, 2, 4, 2, 5.0))
sketch9.addConstraint(Sketcher.Constraint("DistanceY", 4, 2, 0, 2, 5.0))
sketch9.addConstraint(Sketcher.Constraint("DistanceY", 22, 1, 22, 2, 1.883001))
sketch9.addConstraint(Sketcher.Constraint("Distance", 8, 3.473))
sketch9.addConstraint(Sketcher.Constraint("DistanceX", 9, 1, 9, 2, 1.14497))
sketch9.addConstraint(Sketcher.Constraint("DistanceX", 34, 2, 34, 1, 1.882038))
sketch9.addConstraint(Sketcher.Constraint("DistanceY", 21, 2, 21, 1, 3.31192))
sketch9.addConstraint(Sketcher.Constraint("DistanceY", 28, 2, 28, 1, 1.837448))
sketch9.addConstraint(Sketcher.Constraint("DistanceY", 30, 1, 30, 2, 0.53539))
sketch9.addConstraint(Sketcher.Constraint("DistanceY", 10, 2, -1, 1, 248.138701))
sketch9.addConstraint(Sketcher.Constraint("DistanceX", 17, 2, 22, 2, 14.092801))
sketch9.addConstraint(Sketcher.Constraint("Distance", 10, 3.433541))
sketch9.addConstraint(Sketcher.Constraint("Distance", 14, 1.393049))
sketch9.addConstraint(Sketcher.Constraint("DistanceX", 13, 2, 13, 1, 0.555746))
sketch9.addConstraint(Sketcher.Constraint("DistanceX", 16, 1, 16, 2, 0.439613))
sketch9.addConstraint(Sketcher.Constraint("DistanceX", 18, 1, 18, 2, 1.449094))
sketch9.addConstraint(Sketcher.Constraint("DistanceX", 23, 2, 23, 1, 1.863657))
sketch9.addConstraint(Sketcher.Constraint("DistanceX", 25, 1, 25, 2, 1.218545))
sketch9.addConstraint(Sketcher.Constraint("DistanceX", 31, 2, 31, 1, 1.290224))
sketch9.addConstraint(Sketcher.Constraint("DistanceX", 38, 1, 38, 2, 1.605788))
sketch9.addConstraint(Sketcher.Constraint("DistanceX", 40, 2, 40, 1, 1.212763))
sketch9.addConstraint(Sketcher.Constraint("DistanceY", 17, 1, 17, 2, 2.871835))
sketch9.addConstraint(Sketcher.Constraint("DistanceX", 0, 2, -1, 1, 397.667441))
sketch9.addConstraint(Sketcher.Constraint("DistanceX", 12, 2, -1, 1, 380.240129))
sketch9.addConstraint(Sketcher.Constraint("DistanceX", 16, 2, -1, 1, 360.339719))
sketch9.addConstraint(Sketcher.Constraint("DistanceY", 17, 2, -1, 1, 248.428481))
sketch9.addConstraint(Sketcher.Constraint("DistanceX", 5, 2, 8, 2, 11.578878))
sketch9.addConstraint(Sketcher.Constraint("DistanceY", 8, 2, 5, 2, 4.249639))
sketch9.addConstraint(Sketcher.Constraint("DistanceX", 36, 2, 38, 2, 2.103681))
sketch9.addConstraint(Sketcher.Constraint("DistanceX", 34, 2, -1, 1, 342.963194))
pad9 = doc.addObject("PartDesign::Pad", "Pad008")
body.addObject(pad9)
pad9.Profile = sketch9
pad9.Length = 4
pad9.Reversed = True

# Sketch on XZ plane
sketch10 = doc.addObject("Sketcher::SketchObject", "Sketch009")
body.addObject(sketch10)
sketch10.AttachmentSupport = (doc.XZ_Plane, [""])
sketch10.MapMode = "FlatFace"
add_polygon(sketch10, [(-395, -225), (-395, -250), (-330, -250), (-330, -225)])  # lines 0-3
sketch10.addConstraint(Sketcher.Constraint("Vertical", 0))
sketch10.addConstraint(Sketcher.Constraint("Horizontal", 1))
sketch10.addConstraint(Sketcher.Constraint("Vertical", 2))
sketch10.addConstraint(Sketcher.Constraint("Horizontal", 3))
sketch10.addConstraint(Sketcher.Constraint("DistanceX", 1, 1, 1, 2, 65.0))
sketch10.addConstraint(Sketcher.Constraint("DistanceY", 0, 2, 0, 1, 25.0))
sketch10.addConstraint(Sketcher.Constraint("DistanceX", 0, 2, -1, 1, 395.167441))
sketch10.addConstraint(Sketcher.Constraint("DistanceY", 0, 2, -1, 1, 249.673755))
pocket1 = doc.addObject("PartDesign::Pocket", "Pocket")
body.addObject(pocket1)
pocket1.Profile = sketch10
pocket1.Length = 3

doc.recompute()
